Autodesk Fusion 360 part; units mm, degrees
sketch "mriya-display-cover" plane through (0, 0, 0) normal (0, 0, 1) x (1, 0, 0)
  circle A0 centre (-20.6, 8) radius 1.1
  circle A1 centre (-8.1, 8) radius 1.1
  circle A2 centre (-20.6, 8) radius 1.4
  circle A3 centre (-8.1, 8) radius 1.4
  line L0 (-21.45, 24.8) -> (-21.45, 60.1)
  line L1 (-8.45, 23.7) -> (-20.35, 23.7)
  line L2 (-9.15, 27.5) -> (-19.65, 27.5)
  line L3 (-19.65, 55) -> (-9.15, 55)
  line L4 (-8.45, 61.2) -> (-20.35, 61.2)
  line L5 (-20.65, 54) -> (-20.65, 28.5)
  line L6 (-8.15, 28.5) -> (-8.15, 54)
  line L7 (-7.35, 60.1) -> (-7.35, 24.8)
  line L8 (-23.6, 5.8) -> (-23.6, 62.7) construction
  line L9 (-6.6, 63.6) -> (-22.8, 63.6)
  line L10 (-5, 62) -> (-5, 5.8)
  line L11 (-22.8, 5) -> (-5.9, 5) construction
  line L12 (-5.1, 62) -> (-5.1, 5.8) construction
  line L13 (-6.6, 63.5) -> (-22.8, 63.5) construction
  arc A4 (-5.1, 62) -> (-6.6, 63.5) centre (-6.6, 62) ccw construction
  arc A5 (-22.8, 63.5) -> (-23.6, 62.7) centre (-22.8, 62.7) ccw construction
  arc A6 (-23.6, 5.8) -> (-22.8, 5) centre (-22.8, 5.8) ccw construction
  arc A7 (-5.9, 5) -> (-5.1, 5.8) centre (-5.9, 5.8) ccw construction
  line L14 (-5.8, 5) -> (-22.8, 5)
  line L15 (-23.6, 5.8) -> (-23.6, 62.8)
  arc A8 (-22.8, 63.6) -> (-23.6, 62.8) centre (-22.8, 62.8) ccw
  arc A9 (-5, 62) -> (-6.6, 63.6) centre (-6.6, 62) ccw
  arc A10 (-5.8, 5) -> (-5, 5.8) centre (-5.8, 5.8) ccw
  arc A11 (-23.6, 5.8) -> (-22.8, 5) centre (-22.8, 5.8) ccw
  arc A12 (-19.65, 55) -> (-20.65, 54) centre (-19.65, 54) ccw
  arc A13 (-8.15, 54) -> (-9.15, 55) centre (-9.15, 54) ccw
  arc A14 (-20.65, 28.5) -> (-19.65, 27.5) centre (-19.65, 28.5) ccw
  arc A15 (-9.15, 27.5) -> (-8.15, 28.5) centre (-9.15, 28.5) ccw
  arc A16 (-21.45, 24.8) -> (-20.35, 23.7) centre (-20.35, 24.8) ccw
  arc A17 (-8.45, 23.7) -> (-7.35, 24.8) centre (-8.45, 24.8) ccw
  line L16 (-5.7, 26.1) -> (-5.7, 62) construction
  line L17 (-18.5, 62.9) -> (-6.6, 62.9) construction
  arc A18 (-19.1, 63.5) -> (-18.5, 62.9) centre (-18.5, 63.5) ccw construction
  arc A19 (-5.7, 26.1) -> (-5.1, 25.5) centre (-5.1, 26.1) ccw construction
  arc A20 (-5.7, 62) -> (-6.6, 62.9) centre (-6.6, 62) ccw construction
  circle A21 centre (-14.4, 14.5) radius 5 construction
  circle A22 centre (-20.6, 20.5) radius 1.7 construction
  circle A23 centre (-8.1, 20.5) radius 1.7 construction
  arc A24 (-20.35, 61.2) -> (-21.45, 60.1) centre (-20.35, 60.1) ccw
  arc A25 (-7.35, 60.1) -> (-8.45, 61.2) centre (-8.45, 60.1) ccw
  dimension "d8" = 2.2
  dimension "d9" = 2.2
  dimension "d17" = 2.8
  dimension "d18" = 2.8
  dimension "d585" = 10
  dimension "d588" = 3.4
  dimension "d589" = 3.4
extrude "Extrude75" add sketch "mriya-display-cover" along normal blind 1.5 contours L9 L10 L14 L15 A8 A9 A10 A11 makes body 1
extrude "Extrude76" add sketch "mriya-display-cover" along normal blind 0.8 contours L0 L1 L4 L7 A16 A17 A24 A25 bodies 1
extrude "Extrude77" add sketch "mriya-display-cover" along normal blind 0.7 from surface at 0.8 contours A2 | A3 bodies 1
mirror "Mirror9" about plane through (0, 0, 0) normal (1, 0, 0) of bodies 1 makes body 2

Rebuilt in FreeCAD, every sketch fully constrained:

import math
import FreeCAD as App
import Part
import Sketcher

doc = App.newDocument("Part")
body = doc.addObject("PartDesign::Body", "Body")
body.AllowCompound = True

sketch1 = body.newObject("Sketcher::SketchObject", "Sketch")
sketch1.AttachmentSupport = (doc.getObject("XY_Plane"), [""])
sketch1.MapMode = "FlatFace"
sketch1.addGeometry(Part.ArcOfCircle(Part.Circle(App.Vector(-6.6, 62, 0), App.Vector(0, 0, 1), 1.6), math.radians(0), math.radians(90)), False)
sketch1.addGeometry(Part.LineSegment(App.Vector(-6.6, 63.6, 0), App.Vector(-22.8, 63.6, 0)), False)
sketch1.addGeometry(Part.ArcOfCircle(Part.Circle(App.Vector(-22.8, 62.8, 0), App.Vector(0, 0, 1), 0.8), math.radians(90), math.radians(180)), False)
sketch1.addGeometry(Part.LineSegment(App.Vector(-23.6, 62.8, 0), App.Vector(-23.6, 5.8, 0)), False)
sketch1.addGeometry(Part.ArcOfCircle(Part.Circle(App.Vector(-22.8, 5.8, 0), App.Vector(0, 0, 1), 0.8), math.radians(180), math.radians(270)), False)
sketch1.addGeometry(Part.LineSegment(App.Vector(-22.8, 5, 0), App.Vector(-5.8, 5, 0)), False)
sketch1.addGeometry(Part.ArcOfCircle(Part.Circle(App.Vector(-5.8, 5.8, 0), App.Vector(0, 0, 1), 0.8), math.radians(-90), math.radians(0)), False)
sketch1.addGeometry(Part.LineSegment(App.Vector(-5, 5.8, 0), App.Vector(-5, 62, 0)), False)
sketch1.addGeometry(Part.Circle(App.Vector(-20.6, 8, 0), App.Vector(0, 0, 1), 1.4), False)
sketch1.addGeometry(Part.Circle(App.Vector(-8.1, 8, 0), App.Vector(0, 0, 1), 1.4), False)
sketch1.addGeometry(Part.ArcOfCircle(Part.Circle(App.Vector(-20.4, 24.8, 0), App.Vector(0, 0, 1), 1.1), math.radians(180), math.radians(270)), False)
sketch1.addGeometry(Part.LineSegment(App.Vector(-21.4, 24.8, 0), App.Vector(-21.4, 60.1, 0)), False)
sketch1.addGeometry(Part.ArcOfCircle(Part.Circle(App.Vector(-20.4, 60.1, 0), App.Vector(0, 0, 1), 1.1), math.radians(90), math.radians(180)), False)
sketch1.addGeometry(Part.LineSegment(App.Vector(-20.4, 61.2, 0), App.Vector(-8.4, 61.2, 0)), False)
sketch1.addGeometry(Part.ArcOfCircle(Part.Circle(App.Vector(-8.4, 60.1, 0), App.Vector(0, 0, 1), 1.1), math.radians(0), math.radians(90)), False)
sketch1.addGeometry(Part.LineSegment(App.Vector(-7.3, 60.1, 0), App.Vector(-7.3, 24.8, 0)), False)
sketch1.addGeometry(Part.ArcOfCircle(Part.Circle(App.Vector(-8.4, 24.8, 0), App.Vector(0, 0, 1), 1.1), math.radians(-90), math.radians(0)), False)
sketch1.addGeometry(Part.LineSegment(App.Vector(-8.4, 23.7, 0), App.Vector(-20.4, 23.7, 0)), False)
sketch1.addConstraint(Sketcher.Constraint("Tangent", 0, 2, 1, 1))
sketch1.addConstraint(Sketcher.Constraint("Tangent", 1, 2, 2, 1))
sketch1.addConstraint(Sketcher.Constraint("Tangent", 2, 2, 3, 1))
sketch1.addConstraint(Sketcher.Constraint("Tangent", 3, 2, 4, 1))
sketch1.addConstraint(Sketcher.Constraint("Tangent", 4, 2, 5, 1))
sketch1.addConstraint(Sketcher.Constraint("Tangent", 5, 2, 6, 1))
sketch1.addConstraint(Sketcher.Constraint("Tangent", 6, 2, 7, 1))
sketch1.addConstraint(Sketcher.Constraint("Tangent", 7, 2, 0, 1))
sketch1.addConstraint(Sketcher.Constraint("Tangent", 10, 1, 11, 1))
sketch1.addConstraint(Sketcher.Constraint("Tangent", 11, 2, 12, 2))
sketch1.addConstraint(Sketcher.Constraint("Tangent", 12, 1, 13, 1))
sketch1.addConstraint(Sketcher.Constraint("Tangent", 13, 2, 14, 2))
sketch1.addConstraint(Sketcher.Constraint("Tangent", 14, 1, 15, 1))
sketch1.addConstraint(Sketcher.Constraint("Tangent", 15, 2, 16, 2))
sketch1.addConstraint(Sketcher.Constraint("Tangent", 16, 1, 17, 1))
sketch1.addConstraint(Sketcher.Constraint("Tangent", 17, 2, 10, 2))
sketch1.addConstraint(Sketcher.Constraint("Horizontal", 1))
sketch1.addConstraint(Sketcher.Constraint("Vertical", 3))
sketch1.addConstraint(Sketcher.Constraint("Horizontal", 5))
sketch1.addConstraint(Sketcher.Constraint("Vertical", 7))
sketch1.addConstraint(Sketcher.Constraint("Vertical", 11))
sketch1.addConstraint(Sketcher.Constraint("Horizontal", 13))
sketch1.addConstraint(Sketcher.Constraint("Vertical", 15))
sketch1.addConstraint(Sketcher.Constraint("Horizontal", 17))
sketch1.addConstraint(Sketcher.Constraint("Equal", 2, 4))
sketch1.addConstraint(Sketcher.Constraint("Equal", 4, 6))
sketch1.addConstraint(Sketcher.Constraint("Equal", 8, 9))
sketch1.addConstraint(Sketcher.Constraint("Equal", 10, 12))
sketch1.addConstraint(Sketcher.Constraint("Equal", 12, 14))
sketch1.addConstraint(Sketcher.Constraint("Equal", 14, 16))
sketch1.addConstraint(Sketcher.Constraint("Horizontal", 8, 3, 9, 3))
sketch1.addConstraint(Sketcher.Constraint("Diameter", 8, 2.8))
sketch1.addConstraint(Sketcher.Constraint("Radius", 10, 1.1))
sketch1.addConstraint(Sketcher.Constraint("Radius", 0, 1.6))
sketch1.addConstraint(Sketcher.Constraint("Radius", 2, 0.8))
sketch1.addConstraint(Sketcher.Constraint("DistanceX", 4, 3, 8, 3, 2.2))
sketch1.addConstraint(Sketcher.Constraint("DistanceY", 4, 3, 8, 3, 2.2))
sketch1.addConstraint(Sketcher.Constraint("DistanceX", 5, 1, 5, 2, 17.0))
sketch1.addConstraint(Sketcher.Constraint("DistanceY", 3, 2, 3, 1, 57.0))
sketch1.addConstraint(Sketcher.Constraint("DistanceX", 13, 1, 13, 2, 11.9))
sketch1.addConstraint(Sketcher.Constraint("DistanceY", 11, 1, 11, 2, 35.3))
sketch1.addConstraint(Sketcher.Constraint("DistanceY", -1, 1, 0, 3, 62.0))
sketch1.addConstraint(Sketcher.Constraint("DistanceX", 6, 2, -1, 1, 5.0))
sketch1.addConstraint(Sketcher.Constraint("DistanceY", 4, 3, 10, 3, 19.0))
sketch1.addConstraint(Sketcher.Constraint("DistanceX", 9, 3, -1, 1, 8.1))
sketch1.addConstraint(Sketcher.Constraint("DistanceX", 10, 3, -1, 1, 20.35))
pad1 = body.newObject("PartDesign::Pad", "Pad")
pad1.Profile = sketch1
pad1.Length = 1.5

sketch2 = body.newObject("Sketcher::SketchObject", "Sketch001")
sketch2.AttachmentSupport = (doc.getObject("XY_Plane"), [""])
sketch2.MapMode = "FlatFace"
sketch2.addGeometry(Part.LineSegment(App.Vector(-21.4, 60.1, 0), App.Vector(-21.4, 24.8, 0)), False)
sketch2.addGeometry(Part.ArcOfCircle(Part.Circle(App.Vector(-20.4, 24.8, 0), App.Vector(0, 0, 1), 1.1), math.radians(180), math.radians(270)), False)
sketch2.addGeometry(Part.LineSegment(App.Vector(-20.4, 23.7, 0), App.Vector(-8.4, 23.7, 0)), False)
sketch2.addGeometry(Part.ArcOfCircle(Part.Circle(App.Vector(-8.4, 24.8, 0), App.Vector(0, 0, 1), 1.1), math.radians(-90), math.radians(0)), False)
sketch2.addGeometry(Part.LineSegment(App.Vector(-7.3, 24.8, 0), App.Vector(-7.3, 60.1, 0)), False)
sketch2.addGeometry(Part.ArcOfCircle(Part.Circle(App.Vector(-8.4, 60.1, 0), App.Vector(0, 0, 1), 1.1), math.radians(0), math.radians(90)), False)
sketch2.addGeometry(Part.LineSegment(App.Vector(-8.4, 61.2, 0), App.Vector(-20.4, 61.2, 0)), False)
sketch2.addGeometry(Part.ArcOfCircle(Part.Circle(App.Vector(-20.4, 60.1, 0), App.Vector(0, 0, 1), 1.1), math.radians(90), math.radians(180)), False)
sketch2.addGeometry(Part.ArcOfCircle(Part.Circle(App.Vector(-9.2, 28.5, 0), App.Vector(0, 0, 1), 1), math.radians(-90), math.radians(0)), False)
sketch2.addGeometry(Part.LineSegment(App.Vector(-9.2, 27.5, 0), App.Vector(-19.6, 27.5, 0)), False)
sketch2.addGeometry(Part.ArcOfCircle(Part.Circle(App.Vector(-19.6, 28.5, 0), App.Vector(0, 0, 1), 1), math.radians(180), math.radians(270)), False)
sketch2.addGeometry(Part.LineSegment(App.Vector(-20.6, 28.5, 0), App.Vector(-20.6, 54, 0)), False)
sketch2.addGeometry(Part.ArcOfCircle(Part.Circle(App.Vector(-19.6, 54, 0), App.Vector(0, 0, 1), 1), math.radians(90), math.radians(180)), False)
sketch2.addGeometry(Part.LineSegment(App.Vector(-19.6, 55, 0), App.Vector(-9.2, 55, 0)), False)
sketch2.addGeometry(Part.ArcOfCircle(Part.Circle(App.Vector(-9.2, 54, 0), App.Vector(0, 0, 1), 1), math.radians(0), math.radians(90)), False)
sketch2.addGeometry(Part.LineSegment(App.Vector(-8.2, 54, 0), App.Vector(-8.2, 28.5, 0)), False)
sketch2.addConstraint(Sketcher.Constraint("Tangent", 0, 2, 1, 1))
sketch2.addConstraint(Sketcher.Constraint("Tangent", 1, 2, 2, 1))
sketch2.addConstraint(Sketcher.Constraint("Tangent", 2, 2, 3, 1))
sketch2.addConstraint(Sketcher.Constraint("Tangent", 3, 2, 4, 1))
sketch2.addConstraint(Sketcher.Constraint("Tangent", 4, 2, 5, 1))
sketch2.addConstraint(Sketcher.Constraint("Tangent", 5, 2, 6, 1))
sketch2.addConstraint(Sketcher.Constraint("Tangent", 6, 2, 7, 1))
sketch2.addConstraint(Sketcher.Constraint("Tangent", 7, 2, 0, 1))
sketch2.addConstraint(Sketcher.Constraint("Tangent", 8, 1, 9, 1))
sketch2.addConstraint(Sketcher.Constraint("Tangent", 9, 2, 10, 2))
sketch2.addConstraint(Sketcher.Constraint("Tangent", 10, 1, 11, 1))
sketch2.addConstraint(Sketcher.Constraint("Tangent", 11, 2, 12, 2))
sketch2.addConstraint(Sketcher.Constraint("Tangent", 12, 1, 13, 1))
sketch2.addConstraint(Sketcher.Constraint("Tangent", 13, 2, 14, 2))
sketch2.addConstraint(Sketcher.Constraint("Tangent", 14, 1, 15, 1))
sketch2.addConstraint(Sketcher.Constraint("Tangent", 15, 2, 8, 2))
sketch2.addConstraint(Sketcher.Constraint("Vertical", 0))
sketch2.addConstraint(Sketcher.Constraint("Horizontal", 2))
sketch2.addConstraint(Sketcher.Constraint("Vertical", 4))
sketch2.addConstraint(Sketcher.Constraint("Horizontal", 6))
sketch2.addConstraint(Sketcher.Constraint("Horizontal", 9))
sketch2.addConstraint(Sketcher.Constraint("Vertical", 11))
sketch2.addConstraint(Sketcher.Constraint("Horizontal", 13))
sketch2.addConstraint(Sketcher.Constraint("Vertical", 15))
sketch2.addConstraint(Sketcher.Constraint("Equal", 1, 3))
sketch2.addConstraint(Sketcher.Constraint("Equal", 3, 5))
sketch2.addConstraint(Sketcher.Constraint("Equal", 5, 7))
sketch2.addConstraint(Sketcher.Constraint("Equal", 8, 10))
sketch2.addConstraint(Sketcher.Constraint("Equal", 10, 12))
sketch2.addConstraint(Sketcher.Constraint("Equal", 12, 14))
sketch2.addConstraint(Sketcher.Constraint("Radius", 1, 1.1))
sketch2.addConstraint(Sketcher.Constraint("Radius", 8, 1.0))
sketch2.addConstraint(Sketcher.Constraint("DistanceX", 2, 1, 2, 2, 11.9))
sketch2.addConstraint(Sketcher.Constraint("DistanceX", 9, 2, 9, 1, 10.5))
sketch2.addConstraint(Sketcher.Constraint("DistanceY", 0, 2, 0, 1, 35.3))
sketch2.addConstraint(Sketcher.Constraint("DistanceY", 11, 1, 11, 2, 25.5))
sketch2.addConstraint(Sketcher.Constraint("DistanceY", -1, 1, 12, 3, 54.0))
sketch2.addConstraint(Sketcher.Constraint("DistanceY", -1, 1, 1, 3, 24.8))
sketch2.addConstraint(Sketcher.Constraint("DistanceX", 8, 3, 3, 3, 0.7))
sketch2.addConstraint(Sketcher.Constraint("DistanceX", 1, 3, -1, 1, 20.35))
pad2 = body.newObject("PartDesign::Pad", "Pad001")
pad2.Profile = sketch2
pad2.Length = 0.8

sketch3 = body.newObject("Sketcher::SketchObject", "Sketch002")
sketch3.AttachmentSupport = (doc.getObject("XY_Plane"), [""])
sketch3.MapMode = "FlatFace"
sketch3.AttachmentOffset = App.Placement(App.Vector(0, 0, 0.8), App.Rotation())
sketch3.addGeometry(Part.Circle(App.Vector(-20.6, 8, 0), App.Vector(0, 0, 1), 1.4), False)
sketch3.addGeometry(Part.Circle(App.Vector(-20.6, 8, 0), App.Vector(0, 0, 1), 1.1), False)
sketch3.addGeometry(Part.Circle(App.Vector(-8.1, 8, 0), App.Vector(0, 0, 1), 1.4), False)
sketch3.addGeometry(Part.Circle(App.Vector(-8.1, 8, 0), App.Vector(0, 0, 1), 1.1), False)
sketch3.addConstraint(Sketcher.Constraint("Coincident", 1, 3, 0, 3))
sketch3.addConstraint(Sketcher.Constraint("Coincident", 3, 3, 2, 3))
sketch3.addConstraint(Sketcher.Constraint("Equal", 0, 2))
sketch3.addConstraint(Sketcher.Constraint("Equal", 1, 3))
sketch3.addConstraint(Sketcher.Constraint("Horizontal", 1, 3, 2, 3))
sketch3.addConstraint(Sketcher.Constraint("Diameter", 0, 2.8))
sketch3.addConstraint(Sketcher.Constraint("Diameter", 1, 2.2))
sketch3.addConstraint(Sketcher.Constraint("DistanceY", -1, 1, 0, 3, 8.0))
sketch3.addConstraint(Sketcher.Constraint("DistanceX", 0, 3, -1, 1, 20.6))
sketch3.addConstraint(Sketcher.Constraint("DistanceX", 2, 3, -1, 1, 8.1))
pad3 = body.newObject("PartDesign::Pad", "Pad002")
pad3.Profile = sketch3
pad3.Length = 0.7
doc.recompute()

mirrored = body.newObject("PartDesign::Mirrored", "Mirrored")
mirrored.TransformMode = "Transform body"
mirrored.MirrorPlane = (doc.getObject("YZ_Plane"), [""])
body.Tip = mirrored

doc.recompute()
